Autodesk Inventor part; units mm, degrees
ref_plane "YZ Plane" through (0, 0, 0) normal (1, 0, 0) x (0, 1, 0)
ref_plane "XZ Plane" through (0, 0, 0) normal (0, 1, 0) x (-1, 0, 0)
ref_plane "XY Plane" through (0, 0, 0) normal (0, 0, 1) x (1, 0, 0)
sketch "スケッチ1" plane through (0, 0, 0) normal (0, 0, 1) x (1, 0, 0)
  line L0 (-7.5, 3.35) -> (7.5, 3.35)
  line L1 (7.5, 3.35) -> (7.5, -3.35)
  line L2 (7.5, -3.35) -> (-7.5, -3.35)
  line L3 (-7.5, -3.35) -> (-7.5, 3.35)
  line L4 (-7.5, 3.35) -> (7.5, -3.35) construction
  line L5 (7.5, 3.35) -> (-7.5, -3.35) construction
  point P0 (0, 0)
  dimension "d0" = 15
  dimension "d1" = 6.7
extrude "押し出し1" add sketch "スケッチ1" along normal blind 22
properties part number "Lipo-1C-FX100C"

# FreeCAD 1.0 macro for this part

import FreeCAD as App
import Part
import Sketcher

V = App.Vector
Q = App.Units.Quantity


def add_polygon(sketch, points):
    """Adds a closed chain of lines whose ends are joined by coincident constraints."""
    first, n = sketch.GeometryCount, len(points)
    for a, b in zip(points, points[1:] + points[:1]):
        sketch.addGeometry(Part.LineSegment(App.Vector(*a, 0), App.Vector(*b, 0)), False)
    for i in range(n):
        sketch.addConstraint(Sketcher.Constraint("Coincident", first + i, 2, first + (i + 1) % n, 1))

doc = App.newDocument("Part")
body = doc.addObject("PartDesign::Body", "Body")

# Sketch on XY plane
sketch1 = body.newObject("Sketcher::SketchObject", "Sketch")
sketch1.AttachmentSupport = (doc.getObject("XY_Plane"), [""])
sketch1.MapMode = "FlatFace"
add_polygon(sketch1, [(7.5, 3.35), (-7.5, 3.35), (-7.5, -3.35), (7.5, -3.35)])  # lines 0-3
sketch1.addConstraint(Sketcher.Constraint("Horizontal", 0))
sketch1.addConstraint(Sketcher.Constraint("Vertical", 1))
sketch1.addConstraint(Sketcher.Constraint("Horizontal", 2))
sketch1.addConstraint(Sketcher.Constraint("Vertical", 3))
sketch1.addConstraint(Sketcher.Constraint("Symmetric", 0, 2, 2, 2, -1, 1))
sketch1.addConstraint(Sketcher.Constraint("DistanceX", 0, 2, 0, 1, Q("15 mm")))
sketch1.addConstraint(Sketcher.Constraint("DistanceY", 1, 2, 1, 1, Q("6.7 mm")))
pad1 = body.newObject("PartDesign::Pad", "Pad")
pad1.Profile = sketch1
pad1.Length = 22

doc.recompute()
